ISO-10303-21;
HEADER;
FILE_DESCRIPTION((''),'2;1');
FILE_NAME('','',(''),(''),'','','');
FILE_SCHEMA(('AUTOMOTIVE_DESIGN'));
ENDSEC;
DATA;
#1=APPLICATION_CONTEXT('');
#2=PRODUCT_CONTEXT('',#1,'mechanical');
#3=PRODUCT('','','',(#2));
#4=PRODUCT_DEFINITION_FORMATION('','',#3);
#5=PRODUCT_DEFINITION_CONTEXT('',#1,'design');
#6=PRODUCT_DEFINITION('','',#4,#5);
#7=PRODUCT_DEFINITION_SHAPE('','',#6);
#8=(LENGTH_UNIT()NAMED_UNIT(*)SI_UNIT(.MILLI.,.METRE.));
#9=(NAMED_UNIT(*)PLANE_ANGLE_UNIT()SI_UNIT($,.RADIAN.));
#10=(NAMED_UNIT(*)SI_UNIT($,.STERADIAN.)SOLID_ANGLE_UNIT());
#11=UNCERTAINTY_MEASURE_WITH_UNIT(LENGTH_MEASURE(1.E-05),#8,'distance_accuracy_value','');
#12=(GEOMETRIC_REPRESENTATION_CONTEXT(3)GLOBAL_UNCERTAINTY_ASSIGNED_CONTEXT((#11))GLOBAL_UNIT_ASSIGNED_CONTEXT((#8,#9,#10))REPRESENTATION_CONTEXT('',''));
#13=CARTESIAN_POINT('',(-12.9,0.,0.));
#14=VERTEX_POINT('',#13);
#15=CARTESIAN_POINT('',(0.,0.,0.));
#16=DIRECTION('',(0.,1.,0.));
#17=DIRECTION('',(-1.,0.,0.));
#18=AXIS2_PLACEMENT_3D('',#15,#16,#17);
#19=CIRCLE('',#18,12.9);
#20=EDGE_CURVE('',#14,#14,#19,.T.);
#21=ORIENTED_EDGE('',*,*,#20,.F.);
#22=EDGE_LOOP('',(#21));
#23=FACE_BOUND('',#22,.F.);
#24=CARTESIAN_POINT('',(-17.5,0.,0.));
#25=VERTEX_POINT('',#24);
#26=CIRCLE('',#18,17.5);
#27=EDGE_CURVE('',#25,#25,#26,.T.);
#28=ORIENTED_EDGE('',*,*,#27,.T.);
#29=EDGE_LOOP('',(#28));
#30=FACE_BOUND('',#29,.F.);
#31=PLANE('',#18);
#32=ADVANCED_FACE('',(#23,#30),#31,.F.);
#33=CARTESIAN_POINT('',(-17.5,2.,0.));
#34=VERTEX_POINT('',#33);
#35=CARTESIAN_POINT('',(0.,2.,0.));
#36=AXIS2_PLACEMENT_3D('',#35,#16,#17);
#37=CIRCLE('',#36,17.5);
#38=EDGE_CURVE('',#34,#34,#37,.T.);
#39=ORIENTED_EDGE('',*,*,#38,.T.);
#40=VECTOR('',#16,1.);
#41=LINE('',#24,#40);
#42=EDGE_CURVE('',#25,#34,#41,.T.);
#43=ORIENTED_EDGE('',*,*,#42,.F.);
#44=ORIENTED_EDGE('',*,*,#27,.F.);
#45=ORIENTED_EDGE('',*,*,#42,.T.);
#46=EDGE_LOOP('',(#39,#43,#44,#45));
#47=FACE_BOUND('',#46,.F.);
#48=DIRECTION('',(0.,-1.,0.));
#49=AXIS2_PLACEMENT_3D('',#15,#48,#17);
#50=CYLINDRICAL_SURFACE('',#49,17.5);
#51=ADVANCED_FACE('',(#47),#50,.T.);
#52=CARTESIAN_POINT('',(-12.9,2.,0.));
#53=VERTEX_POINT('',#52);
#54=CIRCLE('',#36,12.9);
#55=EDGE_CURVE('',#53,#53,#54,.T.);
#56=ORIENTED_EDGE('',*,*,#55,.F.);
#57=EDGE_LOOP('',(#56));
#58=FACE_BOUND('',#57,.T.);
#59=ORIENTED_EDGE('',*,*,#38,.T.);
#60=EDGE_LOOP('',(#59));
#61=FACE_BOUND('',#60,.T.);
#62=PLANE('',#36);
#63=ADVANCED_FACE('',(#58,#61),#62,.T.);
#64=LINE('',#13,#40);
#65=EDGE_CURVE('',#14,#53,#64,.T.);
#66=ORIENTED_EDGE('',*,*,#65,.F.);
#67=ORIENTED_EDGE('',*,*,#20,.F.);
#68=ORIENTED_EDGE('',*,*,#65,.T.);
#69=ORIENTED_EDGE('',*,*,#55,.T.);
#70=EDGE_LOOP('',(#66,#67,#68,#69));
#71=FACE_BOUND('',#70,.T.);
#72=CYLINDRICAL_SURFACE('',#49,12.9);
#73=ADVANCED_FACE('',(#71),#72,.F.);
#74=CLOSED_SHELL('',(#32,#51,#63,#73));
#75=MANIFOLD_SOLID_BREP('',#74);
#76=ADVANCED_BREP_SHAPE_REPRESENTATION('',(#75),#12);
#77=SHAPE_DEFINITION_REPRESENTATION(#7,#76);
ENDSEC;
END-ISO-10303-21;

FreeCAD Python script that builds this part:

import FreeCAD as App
import Part
import Sketcher

V = App.Vector

doc = App.newDocument("Part")
params = doc.addObject("Spreadsheet::Sheet", "Params")
for row, (alias, value) in enumerate([
    ("sketch1_diameter", "35 mm"),
    ("sketch1_diameter2", "25.8 mm"),
    ("pad1_length", "2 mm"),
], start=1):
    params.set(f"A{row}", alias)
    params.set(f"B{row}", "=" + value)
    params.setAlias(f"B{row}", alias)

body = doc.addObject("PartDesign::Body", "Body")

# Sketch on XZ plane
sketch1 = body.newObject("Sketcher::SketchObject", "Sketch")
sketch1.AttachmentSupport = (doc.getObject("XZ_Plane"), [""])
sketch1.MapMode = "FlatFace"
sketch1.addGeometry([
    Part.Circle(V(0, 0, 0), V(0, 0, 1), 17.5),
    Part.Circle(V(0, 0, 0), V(0, 0, 1), 12.9),
], False)
sketch1.addConstraint([
    Sketcher.Constraint("Coincident", 0, 3, -1, 1),
    Sketcher.Constraint("Coincident", 1, 3, -1, 1),
    Sketcher.Constraint("Diameter", 0, 35.0),
    Sketcher.Constraint("Diameter", 1, 25.8),
])
sketch1.setExpression("Constraints[2]", "Params.sketch1_diameter")
sketch1.setExpression("Constraints[3]", "Params.sketch1_diameter2")
pad1 = body.newObject("PartDesign::Pad", "Pad")
pad1.Profile = sketch1
pad1.setExpression("Length", "Params.pad1_length")
pad1.Reversed = True

doc.recompute()
